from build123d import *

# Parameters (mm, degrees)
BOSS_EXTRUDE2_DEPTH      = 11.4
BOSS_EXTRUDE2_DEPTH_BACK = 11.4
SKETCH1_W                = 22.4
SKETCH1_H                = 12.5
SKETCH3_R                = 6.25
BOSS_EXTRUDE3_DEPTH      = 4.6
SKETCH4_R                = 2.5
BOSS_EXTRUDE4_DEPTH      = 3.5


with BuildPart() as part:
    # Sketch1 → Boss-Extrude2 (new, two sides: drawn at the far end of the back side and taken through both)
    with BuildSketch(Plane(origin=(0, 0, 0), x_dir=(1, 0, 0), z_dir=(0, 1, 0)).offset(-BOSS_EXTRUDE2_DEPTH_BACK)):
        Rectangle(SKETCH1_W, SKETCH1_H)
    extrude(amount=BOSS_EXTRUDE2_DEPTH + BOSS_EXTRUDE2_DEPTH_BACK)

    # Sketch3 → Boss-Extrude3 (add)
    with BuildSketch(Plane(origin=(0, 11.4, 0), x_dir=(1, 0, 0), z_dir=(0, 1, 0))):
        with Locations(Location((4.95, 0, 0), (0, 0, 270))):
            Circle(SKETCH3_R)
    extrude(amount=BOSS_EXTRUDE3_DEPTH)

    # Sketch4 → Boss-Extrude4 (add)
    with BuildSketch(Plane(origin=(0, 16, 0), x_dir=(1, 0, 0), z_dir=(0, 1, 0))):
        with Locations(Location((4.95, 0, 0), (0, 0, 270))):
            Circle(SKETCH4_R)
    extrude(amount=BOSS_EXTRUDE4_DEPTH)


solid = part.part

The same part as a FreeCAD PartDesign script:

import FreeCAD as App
import Part
import Sketcher


def add_polygon(sketch, points):
    """Adds a closed chain of lines whose ends are joined by coincident constraints."""
    first, n = sketch.GeometryCount, len(points)
    for a, b in zip(points, points[1:] + points[:1]):
        sketch.addGeometry(Part.LineSegment(App.Vector(*a, 0), App.Vector(*b, 0)), False)
    for i in range(n):
        sketch.addConstraint(Sketcher.Constraint("Coincident", first + i, 2, first + (i + 1) % n, 1))

doc = App.newDocument("Part")
body = doc.addObject("PartDesign::Body", "Body")

# Sketch on XZ plane
sketch1 = doc.addObject("Sketcher::SketchObject", "Sketch")
body.addObject(sketch1)
sketch1.AttachmentSupport = (doc.XZ_Plane, [""])
sketch1.MapMode = "FlatFace"
add_polygon(sketch1, [(-11, -6), (-11, 6), (11, 6), (11, -6)])  # lines 0-3
sketch1.addConstraint(Sketcher.Constraint("Vertical", 0))
sketch1.addConstraint(Sketcher.Constraint("Horizontal", 1))
sketch1.addConstraint(Sketcher.Constraint("Vertical", 2))
sketch1.addConstraint(Sketcher.Constraint("Horizontal", 3))
sketch1.addConstraint(Sketcher.Constraint("Symmetric", 0, 2, 2, 2, -1, 1))
sketch1.addConstraint(Sketcher.Constraint("DistanceX", 1, 1, 1, 2, 22.4))
sketch1.addConstraint(Sketcher.Constraint("DistanceY", 0, 1, 0, 2, 12.5))
pad1 = doc.addObject("PartDesign::Pad", "Pad")
body.addObject(pad1)
pad1.Profile = sketch1
pad1.Type = "TwoLengths"
pad1.Length = 11.4
pad1.Length2 = 11.4
pad1.Reversed = True

# Sketch on XZ plane
sketch2 = doc.addObject("Sketcher::SketchObject", "Sketch001")
body.addObject(sketch2)
sketch2.AttachmentSupport = (doc.XZ_Plane, [""])
sketch2.MapMode = "FlatFace"
sketch2.AttachmentOffset = App.Placement(App.Vector(0, 0, -11.4), App.Rotation())
sketch2.addGeometry(Part.Circle(App.Vector(5, 0, 0), App.Vector(0, 0, 1), 6), False)
sketch2.addConstraint(Sketcher.Constraint("PointOnObject", 0, 3, -1))
sketch2.addConstraint(Sketcher.Constraint("Diameter", 0, 12.5))
sketch2.addConstraint(Sketcher.Constraint("DistanceX", -1, 1, 0, 3, 4.95))
pad2 = doc.addObject("PartDesign::Pad", "Pad001")
body.addObject(pad2)
pad2.Profile = sketch2
pad2.Length = 4.6
pad2.Reversed = True

# Sketch on XZ plane
sketch3 = doc.addObject("Sketcher::SketchObject", "Sketch002")
body.addObject(sketch3)
sketch3.AttachmentSupport = (doc.XZ_Plane, [""])
sketch3.MapMode = "FlatFace"
sketch3.AttachmentOffset = App.Placement(App.Vector(0, 0, -16), App.Rotation())
sketch3.addGeometry(Part.Circle(App.Vector(5, 0, 0), App.Vector(0, 0, 1), 2.5), False)
sketch3.addConstraint(Sketcher.Constraint("PointOnObject", 0, 3, -1))
sketch3.addConstraint(Sketcher.Constraint("Diameter", 0, 5.0))
sketch3.addConstraint(Sketcher.Constraint("DistanceX", -1, 1, 0, 3, 4.95))
pad3 = doc.addObject("PartDesign::Pad", "Pad002")
body.addObject(pad3)
pad3.Profile = sketch3
pad3.Length = 3.5
pad3.Reversed = True

doc.recompute()
